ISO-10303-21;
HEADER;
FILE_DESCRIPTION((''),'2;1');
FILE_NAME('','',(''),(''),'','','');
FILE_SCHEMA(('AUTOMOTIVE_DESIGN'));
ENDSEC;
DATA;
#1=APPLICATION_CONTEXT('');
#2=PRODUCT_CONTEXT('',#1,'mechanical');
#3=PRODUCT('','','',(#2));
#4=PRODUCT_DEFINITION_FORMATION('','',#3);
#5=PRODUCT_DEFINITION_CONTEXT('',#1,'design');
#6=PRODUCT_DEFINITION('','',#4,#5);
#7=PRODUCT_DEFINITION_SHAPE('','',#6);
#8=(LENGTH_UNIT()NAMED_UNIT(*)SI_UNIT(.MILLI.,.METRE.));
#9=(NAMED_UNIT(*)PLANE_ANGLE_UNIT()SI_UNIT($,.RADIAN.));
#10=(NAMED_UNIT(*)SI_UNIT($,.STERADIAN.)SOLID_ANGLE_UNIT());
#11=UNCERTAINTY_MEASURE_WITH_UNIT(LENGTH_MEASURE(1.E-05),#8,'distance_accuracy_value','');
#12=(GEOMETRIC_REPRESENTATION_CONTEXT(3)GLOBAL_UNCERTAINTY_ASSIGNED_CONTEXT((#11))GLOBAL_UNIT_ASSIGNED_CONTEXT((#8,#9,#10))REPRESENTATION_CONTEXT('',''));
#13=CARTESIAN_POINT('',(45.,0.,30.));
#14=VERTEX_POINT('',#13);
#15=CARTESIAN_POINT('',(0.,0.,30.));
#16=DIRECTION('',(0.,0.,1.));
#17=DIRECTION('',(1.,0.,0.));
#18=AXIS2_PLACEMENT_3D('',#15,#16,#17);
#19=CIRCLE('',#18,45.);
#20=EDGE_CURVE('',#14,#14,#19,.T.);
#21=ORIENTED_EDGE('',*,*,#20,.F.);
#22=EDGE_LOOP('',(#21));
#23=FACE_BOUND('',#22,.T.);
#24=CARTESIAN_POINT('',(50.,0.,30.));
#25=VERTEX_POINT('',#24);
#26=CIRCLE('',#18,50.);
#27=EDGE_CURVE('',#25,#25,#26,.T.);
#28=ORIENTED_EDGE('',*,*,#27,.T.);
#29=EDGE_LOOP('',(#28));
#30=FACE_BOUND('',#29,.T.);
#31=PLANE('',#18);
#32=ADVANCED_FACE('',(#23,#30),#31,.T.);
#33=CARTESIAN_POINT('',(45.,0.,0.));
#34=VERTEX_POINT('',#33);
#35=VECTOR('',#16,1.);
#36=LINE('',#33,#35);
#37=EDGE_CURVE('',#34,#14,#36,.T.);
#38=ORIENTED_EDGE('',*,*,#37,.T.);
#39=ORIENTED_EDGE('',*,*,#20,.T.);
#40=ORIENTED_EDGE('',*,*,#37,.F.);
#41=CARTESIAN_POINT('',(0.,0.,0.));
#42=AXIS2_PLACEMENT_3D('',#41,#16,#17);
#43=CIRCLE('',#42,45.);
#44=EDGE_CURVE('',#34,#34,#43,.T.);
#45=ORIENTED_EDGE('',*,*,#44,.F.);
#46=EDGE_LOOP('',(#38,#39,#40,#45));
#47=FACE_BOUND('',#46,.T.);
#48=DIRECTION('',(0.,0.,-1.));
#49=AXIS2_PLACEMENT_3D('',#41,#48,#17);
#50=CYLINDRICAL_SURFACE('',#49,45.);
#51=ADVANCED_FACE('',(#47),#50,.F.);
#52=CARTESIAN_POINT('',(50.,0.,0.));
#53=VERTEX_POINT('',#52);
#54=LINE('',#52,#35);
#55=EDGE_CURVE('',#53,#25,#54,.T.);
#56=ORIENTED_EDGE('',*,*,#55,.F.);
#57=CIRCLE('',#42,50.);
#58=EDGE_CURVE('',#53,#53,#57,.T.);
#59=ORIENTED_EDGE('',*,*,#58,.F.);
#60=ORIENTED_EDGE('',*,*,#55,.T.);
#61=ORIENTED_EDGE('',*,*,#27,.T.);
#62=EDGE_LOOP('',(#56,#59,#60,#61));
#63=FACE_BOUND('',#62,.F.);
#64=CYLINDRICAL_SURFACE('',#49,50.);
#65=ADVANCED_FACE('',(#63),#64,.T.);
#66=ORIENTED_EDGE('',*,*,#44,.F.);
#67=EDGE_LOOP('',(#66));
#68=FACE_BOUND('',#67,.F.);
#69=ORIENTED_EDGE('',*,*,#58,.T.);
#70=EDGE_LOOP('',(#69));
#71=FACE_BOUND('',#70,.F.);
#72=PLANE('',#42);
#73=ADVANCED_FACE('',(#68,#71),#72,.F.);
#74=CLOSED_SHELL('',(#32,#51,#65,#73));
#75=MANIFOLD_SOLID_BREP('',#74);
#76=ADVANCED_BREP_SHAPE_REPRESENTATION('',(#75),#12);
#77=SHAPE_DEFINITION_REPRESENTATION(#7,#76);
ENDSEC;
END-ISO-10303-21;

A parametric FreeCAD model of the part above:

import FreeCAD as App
import Part
import Sketcher

doc = App.newDocument("Part")
body = doc.addObject("PartDesign::Body", "Body")

sketch1 = doc.addObject("Sketcher::SketchObject", "Sketch")
body.addObject(sketch1)
sketch1.AttachmentSupport = (doc.XY_Plane, [""])
sketch1.MapMode = "FlatFace"
sketch1.addGeometry([
    Part.Circle(App.Vector(0, 0, 0), App.Vector(0, 0, 1), 50),
    Part.Circle(App.Vector(0, 0, 0), App.Vector(0, 0, 1), 45),
], False)
sketch1.addConstraint([
    Sketcher.Constraint("Coincident", 0, 3, -1, 1),
    Sketcher.Constraint("Coincident", 1, 3, -1, 1),
    Sketcher.Constraint("Diameter", 0, 100.0),
    Sketcher.Constraint("Diameter", 1, 90.0),
])
pad1 = doc.addObject("PartDesign::Pad", "Pad")
body.addObject(pad1)
pad1.Profile = sketch1
pad1.Length = 30

doc.recompute()
